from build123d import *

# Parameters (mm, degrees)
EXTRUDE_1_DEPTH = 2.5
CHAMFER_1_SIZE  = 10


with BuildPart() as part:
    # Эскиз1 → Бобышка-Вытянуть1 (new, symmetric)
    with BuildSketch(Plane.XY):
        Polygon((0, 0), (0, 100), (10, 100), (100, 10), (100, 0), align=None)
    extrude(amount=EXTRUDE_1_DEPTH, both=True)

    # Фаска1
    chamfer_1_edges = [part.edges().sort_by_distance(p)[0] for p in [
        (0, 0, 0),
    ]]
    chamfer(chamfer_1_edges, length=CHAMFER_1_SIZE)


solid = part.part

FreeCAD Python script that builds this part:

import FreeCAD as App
import Part
import Sketcher
from FreeCAD import Vector
Q = App.Units.Quantity


def edges_at(feature, points):
    """Names of the edges that pass closest to the given points."""
    edges = feature.Shape.Edges
    near = lambda p: min(range(len(edges)), key=lambda i: edges[i].distToShape(Part.Vertex(*p))[0])
    return sorted({f"Edge{near(p) + 1}" for p in points})


def add_polygon(sketch, points):
    """Adds a closed chain of lines whose ends are joined by coincident constraints."""
    first, n = sketch.GeometryCount, len(points)
    for a, b in zip(points, points[1:] + points[:1]):
        sketch.addGeometry(Part.LineSegment(App.Vector(*a, 0), App.Vector(*b, 0)), False)
    for i in range(n):
        sketch.addConstraint(Sketcher.Constraint("Coincident", first + i, 2, first + (i + 1) % n, 1))

doc = App.newDocument("Part")
body = doc.addObject("PartDesign::Body", "Body")

sketch1 = body.newObject("Sketcher::SketchObject", "Sketch")
sketch1.AttachmentSupport = (doc.getObject("XY_Plane"), [""])
sketch1.MapMode = "FlatFace"
add_polygon(sketch1, [(0, 100), (0, 0), (100, 0), (100, 10), (10, 100)])
sketch1.addConstraint([
    Sketcher.Constraint("Vertical", 0),
    Sketcher.Constraint("Horizontal", 1),
    Sketcher.Constraint("Vertical", 2),
    Sketcher.Constraint("Horizontal", 4),
    Sketcher.Constraint("Coincident", 0, 2, -1, 1),
    Sketcher.Constraint("Equal", 1, 0),
    Sketcher.Constraint("Equal", 4, 2),
    Sketcher.Constraint("DistanceX", 1, 1, 1, 2, Q("100 mm")),
    Sketcher.Constraint("DistanceX", 4, 2, 4, 1, Q("10 mm")),
])
pad1 = body.newObject("PartDesign::Pad", "Pad")
pad1.Profile = sketch1
pad1.Length = 5
pad1.Midplane = True
doc.recompute()

chamfer = body.newObject("PartDesign::Chamfer", "Chamfer")
chamfer.Base = (pad1, edges_at(pad1, [(0, 0, 0)]))
chamfer.Size = 10

doc.recompute()
